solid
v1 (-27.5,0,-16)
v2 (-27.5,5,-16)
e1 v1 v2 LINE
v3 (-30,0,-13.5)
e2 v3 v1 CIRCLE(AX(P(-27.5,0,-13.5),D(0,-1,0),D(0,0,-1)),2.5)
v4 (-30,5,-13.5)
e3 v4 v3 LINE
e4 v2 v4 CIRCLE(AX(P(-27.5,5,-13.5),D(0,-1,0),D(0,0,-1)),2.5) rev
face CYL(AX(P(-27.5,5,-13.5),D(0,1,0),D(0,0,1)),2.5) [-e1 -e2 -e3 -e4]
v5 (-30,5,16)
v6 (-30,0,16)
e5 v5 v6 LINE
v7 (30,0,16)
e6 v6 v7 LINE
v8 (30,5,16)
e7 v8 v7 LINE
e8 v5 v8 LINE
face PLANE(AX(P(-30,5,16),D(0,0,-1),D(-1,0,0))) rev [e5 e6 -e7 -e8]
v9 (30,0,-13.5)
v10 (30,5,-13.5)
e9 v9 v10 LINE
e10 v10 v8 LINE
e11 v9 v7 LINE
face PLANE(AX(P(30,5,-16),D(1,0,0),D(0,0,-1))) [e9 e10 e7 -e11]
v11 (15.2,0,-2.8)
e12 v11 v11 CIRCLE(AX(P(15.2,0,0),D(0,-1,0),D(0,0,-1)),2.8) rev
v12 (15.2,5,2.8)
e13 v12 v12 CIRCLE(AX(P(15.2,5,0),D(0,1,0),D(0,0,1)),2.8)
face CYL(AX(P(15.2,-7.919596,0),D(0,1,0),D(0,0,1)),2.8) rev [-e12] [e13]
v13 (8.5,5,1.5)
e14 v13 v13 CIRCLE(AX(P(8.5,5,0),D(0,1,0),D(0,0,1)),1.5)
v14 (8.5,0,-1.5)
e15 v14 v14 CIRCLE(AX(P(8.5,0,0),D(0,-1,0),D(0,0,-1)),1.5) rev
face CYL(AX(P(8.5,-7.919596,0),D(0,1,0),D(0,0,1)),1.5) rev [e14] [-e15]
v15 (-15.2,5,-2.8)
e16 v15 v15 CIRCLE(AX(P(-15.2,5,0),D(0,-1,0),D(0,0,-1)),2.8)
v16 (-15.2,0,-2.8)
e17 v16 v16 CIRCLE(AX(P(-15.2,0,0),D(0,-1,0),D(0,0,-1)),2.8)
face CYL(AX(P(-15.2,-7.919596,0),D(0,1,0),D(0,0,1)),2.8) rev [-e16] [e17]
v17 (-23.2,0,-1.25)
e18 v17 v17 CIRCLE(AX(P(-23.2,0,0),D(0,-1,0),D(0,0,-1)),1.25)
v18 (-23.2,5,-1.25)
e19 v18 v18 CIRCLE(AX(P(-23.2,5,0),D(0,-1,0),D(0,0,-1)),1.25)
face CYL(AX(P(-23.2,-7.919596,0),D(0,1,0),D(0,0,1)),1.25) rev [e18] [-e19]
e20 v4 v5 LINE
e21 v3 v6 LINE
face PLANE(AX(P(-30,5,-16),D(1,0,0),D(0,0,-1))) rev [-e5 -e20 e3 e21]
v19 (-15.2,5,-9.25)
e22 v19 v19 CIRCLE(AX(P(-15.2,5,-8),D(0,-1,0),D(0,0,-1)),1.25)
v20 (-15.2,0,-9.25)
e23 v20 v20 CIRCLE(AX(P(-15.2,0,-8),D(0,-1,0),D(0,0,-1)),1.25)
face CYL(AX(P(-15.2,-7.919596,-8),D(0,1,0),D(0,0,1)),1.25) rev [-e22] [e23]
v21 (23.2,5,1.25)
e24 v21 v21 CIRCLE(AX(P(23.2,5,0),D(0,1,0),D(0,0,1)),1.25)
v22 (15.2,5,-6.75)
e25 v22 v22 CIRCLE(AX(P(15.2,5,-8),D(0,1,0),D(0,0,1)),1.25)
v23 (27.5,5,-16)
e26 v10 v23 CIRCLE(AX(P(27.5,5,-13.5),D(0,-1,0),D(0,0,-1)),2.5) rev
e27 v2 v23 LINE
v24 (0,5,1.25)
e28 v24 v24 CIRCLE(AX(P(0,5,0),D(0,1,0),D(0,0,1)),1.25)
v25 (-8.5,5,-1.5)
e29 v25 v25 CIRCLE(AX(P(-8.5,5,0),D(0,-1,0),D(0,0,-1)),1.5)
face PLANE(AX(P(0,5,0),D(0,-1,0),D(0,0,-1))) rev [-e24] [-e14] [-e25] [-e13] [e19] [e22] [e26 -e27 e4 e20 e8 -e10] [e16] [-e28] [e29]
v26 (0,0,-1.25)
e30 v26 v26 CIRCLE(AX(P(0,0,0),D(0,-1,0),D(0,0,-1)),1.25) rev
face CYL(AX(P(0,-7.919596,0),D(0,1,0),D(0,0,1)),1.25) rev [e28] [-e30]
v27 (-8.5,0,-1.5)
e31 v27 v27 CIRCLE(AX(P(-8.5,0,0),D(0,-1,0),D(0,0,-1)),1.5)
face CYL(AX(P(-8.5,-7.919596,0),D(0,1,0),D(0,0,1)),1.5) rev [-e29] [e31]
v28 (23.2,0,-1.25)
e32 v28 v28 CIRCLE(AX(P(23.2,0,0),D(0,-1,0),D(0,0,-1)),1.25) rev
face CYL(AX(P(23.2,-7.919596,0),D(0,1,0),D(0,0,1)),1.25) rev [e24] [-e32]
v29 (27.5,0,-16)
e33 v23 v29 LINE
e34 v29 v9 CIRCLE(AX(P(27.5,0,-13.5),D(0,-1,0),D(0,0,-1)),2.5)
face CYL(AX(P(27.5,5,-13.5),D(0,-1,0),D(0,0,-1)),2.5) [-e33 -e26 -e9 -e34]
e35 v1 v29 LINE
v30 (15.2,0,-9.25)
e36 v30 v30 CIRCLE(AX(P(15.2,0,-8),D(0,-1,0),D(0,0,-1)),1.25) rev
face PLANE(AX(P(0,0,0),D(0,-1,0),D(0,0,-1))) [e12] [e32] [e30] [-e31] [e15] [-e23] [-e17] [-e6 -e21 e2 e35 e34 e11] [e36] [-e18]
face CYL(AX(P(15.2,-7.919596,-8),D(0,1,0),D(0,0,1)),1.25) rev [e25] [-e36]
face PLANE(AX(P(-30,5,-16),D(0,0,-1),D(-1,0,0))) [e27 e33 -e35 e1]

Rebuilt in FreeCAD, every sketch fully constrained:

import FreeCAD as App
import Part
import Sketcher
Q = App.Units.Quantity


def edges_at(feature, points):
    """Names of the edges that pass closest to the given points."""
    edges = feature.Shape.Edges
    near = lambda p: min(range(len(edges)), key=lambda i: edges[i].distToShape(Part.Vertex(*p))[0])
    return sorted({f"Edge{near(p) + 1}" for p in points})

doc = App.newDocument("Part")
body = doc.addObject("PartDesign::Body", "Body")

sketch1 = doc.addObject("Sketcher::SketchObject", "Sketch")
body.addObject(sketch1)
sketch1.AttachmentSupport = (doc.XZ_Plane, [""])
sketch1.MapMode = "FlatFace"
sketch1.addGeometry([
    Part.LineSegment(App.Vector(-30, -16, 0), App.Vector(-30, 16, 0)),
    Part.LineSegment(App.Vector(-30, 16, 0), App.Vector(30, 16, 0)),
    Part.LineSegment(App.Vector(30, 16, 0), App.Vector(30, -16, 0)),
    Part.LineSegment(App.Vector(30, -16, 0), App.Vector(-30, -16, 0)),
], False)
sketch1.addConstraint([
    Sketcher.Constraint("Coincident", 0, 2, 1, 1),
    Sketcher.Constraint("Coincident", 1, 2, 2, 1),
    Sketcher.Constraint("Coincident", 2, 2, 3, 1),
    Sketcher.Constraint("Coincident", 3, 2, 0, 1),
    Sketcher.Constraint("Vertical", 0),
    Sketcher.Constraint("Horizontal", 1),
    Sketcher.Constraint("Vertical", 2),
    Sketcher.Constraint("Horizontal", 3),
    Sketcher.Constraint("Symmetric", 0, 2, 2, 2, -1, 1),
    Sketcher.Constraint("DistanceX", 1, 1, 1, 2, Q("60 mm")),
    Sketcher.Constraint("DistanceY", 0, 1, 0, 2, Q("32 mm")),
])
pad1 = doc.addObject("PartDesign::Pad", "Pad")
body.addObject(pad1)
pad1.Profile = sketch1
pad1.Length = 5
pad1.Reversed = True

sketch2 = doc.addObject("Sketcher::SketchObject", "Sketch001")
body.addObject(sketch2)
sketch2.AttachmentSupport = (doc.XZ_Plane, [""])
sketch2.MapMode = "FlatFace"
sketch2.AttachmentOffset = App.Placement(App.Vector(0, 0, -5), App.Rotation())
sketch2.addGeometry([
    Part.Circle(App.Vector(8.5, 0, 0), App.Vector(0, 0, 1), 1.5),
    Part.Circle(App.Vector(-8.5, 0, 0), App.Vector(0, 0, 1), 1.5),
    Part.Circle(App.Vector(0, 0, 0), App.Vector(0, 0, 1), 1.2),
    Part.Circle(App.Vector(15.2, 0, 0), App.Vector(0, 0, 1), 2.8),
    Part.Circle(App.Vector(-15.2, 0, 0), App.Vector(0, 0, 1), 2.8),
    Part.Circle(App.Vector(15.2, -8, 0), App.Vector(0, 0, 1), 1.2),
    Part.Circle(App.Vector(23.2, 0, 0), App.Vector(0, 0, 1), 1.2),
    Part.Circle(App.Vector(-23.2, 0, 0), App.Vector(0, 0, 1), 1.2),
    Part.Circle(App.Vector(-15.2, -8, 0), App.Vector(0, 0, 1), 1.2),
], False)
sketch2.addConstraint([
    Sketcher.Constraint("Coincident", 2, 3, -1, 1),
    Sketcher.Constraint("Equal", 0, 1),
    Sketcher.Constraint("Equal", 3, 4),
    Sketcher.Constraint("Equal", 2, 5),
    Sketcher.Constraint("Equal", 5, 6),
    Sketcher.Constraint("Equal", 6, 7),
    Sketcher.Constraint("Equal", 7, 8),
    Sketcher.Constraint("Symmetric", 0, 3, 1, 3, -1, 1),
    Sketcher.Constraint("Symmetric", 3, 3, 4, 3, -1, 1),
    Sketcher.Constraint("Symmetric", 6, 3, 7, 3, -1, 1),
    Sketcher.Constraint("Symmetric", 5, 3, 8, 3, -2),
    Sketcher.Constraint("PointOnObject", 0, 3, -1),
    Sketcher.Constraint("PointOnObject", 3, 3, -1),
    Sketcher.Constraint("PointOnObject", 6, 3, -1),
    Sketcher.Constraint("Vertical", 3, 3, 5, 3),
    Sketcher.Constraint("Diameter", 0, Q("3 mm")),
    Sketcher.Constraint("Diameter", 2, Q("2.5 mm")),
    Sketcher.Constraint("Diameter", 3, Q("5.6 mm")),
    Sketcher.Constraint("DistanceY", 5, 3, -1, 1, Q("8 mm")),
    Sketcher.Constraint("DistanceX", 1, 3, 0, 3, Q("17 mm")),
    Sketcher.Constraint("DistanceX", 3, 3, 6, 3, Q("8 mm")),
    Sketcher.Constraint("DistanceX", -1, 1, 3, 3, Q("15.2 mm")),
])
pocket1 = doc.addObject("PartDesign::Pocket", "Pocket")
body.addObject(pocket1)
pocket1.Profile = sketch2
pocket1.Length = 5
pocket1.Reversed = True
doc.recompute()

fillet = doc.addObject("PartDesign::Fillet", "Fillet")
body.addObject(fillet)
fillet.Base = (pocket1, edges_at(pocket1, [(-30, 2.5, -16), (30, 2.5, -16)]))
fillet.Radius = 2.5

doc.recompute()
